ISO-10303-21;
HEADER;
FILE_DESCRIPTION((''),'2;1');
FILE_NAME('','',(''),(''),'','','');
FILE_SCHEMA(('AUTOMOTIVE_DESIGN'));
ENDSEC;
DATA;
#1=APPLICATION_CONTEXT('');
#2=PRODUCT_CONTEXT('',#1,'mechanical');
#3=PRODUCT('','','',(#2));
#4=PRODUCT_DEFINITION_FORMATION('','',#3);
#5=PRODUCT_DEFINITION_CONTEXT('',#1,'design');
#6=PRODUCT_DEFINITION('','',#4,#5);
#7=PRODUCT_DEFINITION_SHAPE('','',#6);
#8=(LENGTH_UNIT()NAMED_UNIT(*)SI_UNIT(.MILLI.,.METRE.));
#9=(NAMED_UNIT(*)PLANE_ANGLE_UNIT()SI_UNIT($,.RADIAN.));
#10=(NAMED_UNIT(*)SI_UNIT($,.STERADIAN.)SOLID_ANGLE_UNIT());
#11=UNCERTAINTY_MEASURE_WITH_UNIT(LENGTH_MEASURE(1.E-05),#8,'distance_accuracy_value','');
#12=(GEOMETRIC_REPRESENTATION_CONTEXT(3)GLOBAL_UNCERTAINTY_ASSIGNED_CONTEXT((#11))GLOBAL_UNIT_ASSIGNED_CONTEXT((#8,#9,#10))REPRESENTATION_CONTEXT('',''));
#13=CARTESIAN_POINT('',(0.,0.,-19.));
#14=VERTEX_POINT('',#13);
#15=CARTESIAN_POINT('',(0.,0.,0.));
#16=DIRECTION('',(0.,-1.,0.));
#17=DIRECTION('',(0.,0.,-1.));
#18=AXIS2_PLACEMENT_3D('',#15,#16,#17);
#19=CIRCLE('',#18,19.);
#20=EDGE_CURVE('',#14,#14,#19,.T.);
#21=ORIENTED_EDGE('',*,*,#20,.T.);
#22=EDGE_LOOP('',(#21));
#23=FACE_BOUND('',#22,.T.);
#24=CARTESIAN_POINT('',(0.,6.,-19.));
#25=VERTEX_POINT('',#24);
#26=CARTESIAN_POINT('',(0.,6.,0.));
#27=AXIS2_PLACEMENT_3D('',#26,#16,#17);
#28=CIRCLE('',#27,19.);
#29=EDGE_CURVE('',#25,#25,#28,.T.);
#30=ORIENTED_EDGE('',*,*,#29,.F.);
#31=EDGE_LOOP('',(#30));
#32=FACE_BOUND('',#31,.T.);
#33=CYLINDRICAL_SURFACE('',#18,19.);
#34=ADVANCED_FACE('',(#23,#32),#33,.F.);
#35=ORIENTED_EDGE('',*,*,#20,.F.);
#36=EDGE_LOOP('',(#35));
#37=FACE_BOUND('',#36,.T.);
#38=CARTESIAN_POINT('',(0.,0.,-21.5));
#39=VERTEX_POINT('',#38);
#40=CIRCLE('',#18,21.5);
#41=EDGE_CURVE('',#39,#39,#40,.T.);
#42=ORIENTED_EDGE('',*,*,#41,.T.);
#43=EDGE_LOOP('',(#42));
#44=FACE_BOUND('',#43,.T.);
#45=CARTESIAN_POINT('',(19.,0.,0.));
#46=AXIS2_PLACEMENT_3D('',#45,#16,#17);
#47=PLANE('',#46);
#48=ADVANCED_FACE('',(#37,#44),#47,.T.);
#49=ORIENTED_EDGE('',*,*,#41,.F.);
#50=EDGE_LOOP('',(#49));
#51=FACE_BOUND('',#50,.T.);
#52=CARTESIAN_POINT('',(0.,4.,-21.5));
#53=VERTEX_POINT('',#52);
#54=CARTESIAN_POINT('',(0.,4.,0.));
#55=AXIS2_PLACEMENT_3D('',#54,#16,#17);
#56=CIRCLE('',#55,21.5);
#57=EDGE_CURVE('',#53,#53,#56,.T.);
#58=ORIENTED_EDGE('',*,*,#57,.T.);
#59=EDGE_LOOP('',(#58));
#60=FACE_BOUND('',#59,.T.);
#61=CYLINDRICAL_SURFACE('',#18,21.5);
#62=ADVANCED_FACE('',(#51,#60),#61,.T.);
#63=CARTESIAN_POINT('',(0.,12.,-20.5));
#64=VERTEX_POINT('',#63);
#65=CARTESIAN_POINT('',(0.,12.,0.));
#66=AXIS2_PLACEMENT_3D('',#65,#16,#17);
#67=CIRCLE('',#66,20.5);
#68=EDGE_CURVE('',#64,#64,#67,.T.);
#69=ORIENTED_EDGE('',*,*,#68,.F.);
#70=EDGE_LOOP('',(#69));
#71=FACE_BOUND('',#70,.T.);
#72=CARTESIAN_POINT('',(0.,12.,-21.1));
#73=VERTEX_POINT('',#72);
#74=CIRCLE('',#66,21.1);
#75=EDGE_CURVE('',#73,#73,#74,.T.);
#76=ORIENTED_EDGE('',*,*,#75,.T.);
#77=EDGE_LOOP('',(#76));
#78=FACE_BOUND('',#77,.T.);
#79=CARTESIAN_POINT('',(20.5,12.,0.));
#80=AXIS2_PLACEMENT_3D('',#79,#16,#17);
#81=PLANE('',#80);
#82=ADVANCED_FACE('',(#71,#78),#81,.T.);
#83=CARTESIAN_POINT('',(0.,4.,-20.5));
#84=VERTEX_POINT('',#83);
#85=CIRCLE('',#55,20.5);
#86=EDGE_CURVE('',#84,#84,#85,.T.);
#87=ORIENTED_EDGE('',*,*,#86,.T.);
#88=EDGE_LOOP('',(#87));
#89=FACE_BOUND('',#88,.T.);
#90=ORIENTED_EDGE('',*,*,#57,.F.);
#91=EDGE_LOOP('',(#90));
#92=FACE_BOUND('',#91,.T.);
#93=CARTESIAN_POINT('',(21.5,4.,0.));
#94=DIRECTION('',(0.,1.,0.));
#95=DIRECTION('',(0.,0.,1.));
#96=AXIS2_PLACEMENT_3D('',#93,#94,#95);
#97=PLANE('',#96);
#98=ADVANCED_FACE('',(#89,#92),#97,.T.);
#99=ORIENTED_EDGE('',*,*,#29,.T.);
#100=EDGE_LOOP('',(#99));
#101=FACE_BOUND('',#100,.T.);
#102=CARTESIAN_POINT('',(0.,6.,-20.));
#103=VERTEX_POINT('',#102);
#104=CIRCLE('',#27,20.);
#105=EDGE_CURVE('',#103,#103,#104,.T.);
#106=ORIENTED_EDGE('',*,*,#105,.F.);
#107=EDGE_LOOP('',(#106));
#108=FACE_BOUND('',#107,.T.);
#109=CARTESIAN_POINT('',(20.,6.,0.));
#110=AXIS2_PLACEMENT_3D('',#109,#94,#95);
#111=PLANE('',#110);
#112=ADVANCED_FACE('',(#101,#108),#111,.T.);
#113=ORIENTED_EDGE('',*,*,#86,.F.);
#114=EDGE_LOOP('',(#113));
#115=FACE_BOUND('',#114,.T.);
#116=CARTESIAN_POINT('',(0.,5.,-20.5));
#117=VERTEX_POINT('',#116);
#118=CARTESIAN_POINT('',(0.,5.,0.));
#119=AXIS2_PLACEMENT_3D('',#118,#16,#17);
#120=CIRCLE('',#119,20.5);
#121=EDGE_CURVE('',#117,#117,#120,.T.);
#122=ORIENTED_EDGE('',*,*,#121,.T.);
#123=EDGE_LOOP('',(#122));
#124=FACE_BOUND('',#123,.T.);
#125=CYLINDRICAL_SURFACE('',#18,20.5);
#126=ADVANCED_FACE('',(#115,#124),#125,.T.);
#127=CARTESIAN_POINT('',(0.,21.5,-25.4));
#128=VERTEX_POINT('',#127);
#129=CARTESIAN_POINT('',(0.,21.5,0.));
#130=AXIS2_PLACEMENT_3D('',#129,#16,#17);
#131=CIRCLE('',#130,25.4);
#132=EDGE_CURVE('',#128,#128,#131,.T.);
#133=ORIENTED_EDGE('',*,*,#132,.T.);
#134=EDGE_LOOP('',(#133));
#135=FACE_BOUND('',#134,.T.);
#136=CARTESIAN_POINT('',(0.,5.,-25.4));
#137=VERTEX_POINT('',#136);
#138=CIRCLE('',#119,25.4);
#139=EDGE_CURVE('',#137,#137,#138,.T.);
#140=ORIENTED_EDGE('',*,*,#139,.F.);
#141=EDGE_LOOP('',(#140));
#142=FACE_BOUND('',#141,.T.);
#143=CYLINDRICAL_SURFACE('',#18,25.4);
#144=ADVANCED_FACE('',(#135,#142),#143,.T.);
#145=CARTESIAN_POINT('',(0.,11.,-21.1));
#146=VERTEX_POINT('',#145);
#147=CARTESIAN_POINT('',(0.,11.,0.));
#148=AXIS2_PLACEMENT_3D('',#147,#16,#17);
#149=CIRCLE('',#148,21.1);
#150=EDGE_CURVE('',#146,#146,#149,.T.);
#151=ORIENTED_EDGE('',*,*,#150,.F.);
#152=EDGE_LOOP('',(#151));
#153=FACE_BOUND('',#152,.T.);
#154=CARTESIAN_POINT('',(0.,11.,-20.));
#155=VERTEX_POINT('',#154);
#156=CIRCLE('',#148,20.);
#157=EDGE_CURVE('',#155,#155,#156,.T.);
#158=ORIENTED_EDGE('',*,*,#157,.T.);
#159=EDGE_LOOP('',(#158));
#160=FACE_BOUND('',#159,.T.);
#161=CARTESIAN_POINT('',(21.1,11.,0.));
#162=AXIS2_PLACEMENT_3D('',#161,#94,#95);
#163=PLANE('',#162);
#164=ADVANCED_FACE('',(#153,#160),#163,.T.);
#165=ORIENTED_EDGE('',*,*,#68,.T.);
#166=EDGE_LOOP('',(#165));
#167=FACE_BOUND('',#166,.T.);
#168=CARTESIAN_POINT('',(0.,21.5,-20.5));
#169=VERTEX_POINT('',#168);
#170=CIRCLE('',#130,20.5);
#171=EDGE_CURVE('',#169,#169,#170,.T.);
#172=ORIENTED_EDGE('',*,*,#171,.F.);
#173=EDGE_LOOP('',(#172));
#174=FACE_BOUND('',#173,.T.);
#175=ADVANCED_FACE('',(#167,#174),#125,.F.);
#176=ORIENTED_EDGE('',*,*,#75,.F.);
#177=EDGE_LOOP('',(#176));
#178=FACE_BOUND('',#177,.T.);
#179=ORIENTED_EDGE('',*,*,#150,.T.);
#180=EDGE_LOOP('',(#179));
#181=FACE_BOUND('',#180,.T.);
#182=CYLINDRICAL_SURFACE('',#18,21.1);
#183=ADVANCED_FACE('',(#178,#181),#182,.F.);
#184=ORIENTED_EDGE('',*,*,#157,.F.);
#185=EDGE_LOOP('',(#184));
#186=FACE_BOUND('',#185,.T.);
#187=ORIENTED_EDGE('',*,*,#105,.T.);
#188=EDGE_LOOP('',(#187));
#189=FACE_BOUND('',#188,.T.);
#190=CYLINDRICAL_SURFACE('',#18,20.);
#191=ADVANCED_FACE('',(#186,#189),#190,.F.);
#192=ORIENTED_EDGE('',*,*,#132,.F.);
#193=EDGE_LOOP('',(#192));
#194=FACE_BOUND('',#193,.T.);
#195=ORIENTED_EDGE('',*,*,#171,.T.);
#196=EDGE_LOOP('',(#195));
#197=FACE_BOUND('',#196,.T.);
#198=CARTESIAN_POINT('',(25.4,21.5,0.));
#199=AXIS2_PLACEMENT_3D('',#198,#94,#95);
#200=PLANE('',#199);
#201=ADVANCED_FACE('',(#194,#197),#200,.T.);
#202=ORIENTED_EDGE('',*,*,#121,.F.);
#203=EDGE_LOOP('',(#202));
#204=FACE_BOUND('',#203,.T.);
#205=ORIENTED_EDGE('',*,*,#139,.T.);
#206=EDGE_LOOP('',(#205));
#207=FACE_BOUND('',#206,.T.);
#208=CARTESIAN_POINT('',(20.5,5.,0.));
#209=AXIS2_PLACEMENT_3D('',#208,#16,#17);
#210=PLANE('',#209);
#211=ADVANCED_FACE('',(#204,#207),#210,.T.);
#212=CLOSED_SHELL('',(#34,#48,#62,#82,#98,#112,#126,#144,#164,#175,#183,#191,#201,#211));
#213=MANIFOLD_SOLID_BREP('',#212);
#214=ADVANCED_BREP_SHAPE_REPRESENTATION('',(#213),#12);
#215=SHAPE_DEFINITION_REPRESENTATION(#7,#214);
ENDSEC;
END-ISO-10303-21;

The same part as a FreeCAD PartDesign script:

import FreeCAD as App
import Part
import Sketcher

V = App.Vector
Q = App.Units.Quantity


def add_polygon(sketch, points):
    """Adds a closed chain of lines whose ends are joined by coincident constraints."""
    first, n = sketch.GeometryCount, len(points)
    for a, b in zip(points, points[1:] + points[:1]):
        sketch.addGeometry(Part.LineSegment(App.Vector(*a, 0), App.Vector(*b, 0)), False)
    for i in range(n):
        sketch.addConstraint(Sketcher.Constraint("Coincident", first + i, 2, first + (i + 1) % n, 1))

doc = App.newDocument("Part")
body = doc.addObject("PartDesign::Body", "Body")

sketch1 = body.newObject("Sketcher::SketchObject", "Sketch")
sketch1.AttachmentSupport = (doc.getObject("XY_Plane"), [""])
sketch1.MapMode = "FlatFace"
add_polygon(sketch1, [(19, 0), (21.5, 0), (21.5, 4), (20.5, 4), (20.5, 5), (25.4, 5), (25.4, 21.5), (20.5, 21.5), (20.5, 12), (21.1, 12), (21.1, 11), (20, 11), (20, 6), (19, 6)])
sketch1.addConstraint([
    Sketcher.Constraint("Horizontal", 0),
    Sketcher.Constraint("Vertical", 1),
    Sketcher.Constraint("Horizontal", 2),
    Sketcher.Constraint("Vertical", 3),
    Sketcher.Constraint("Horizontal", 4),
    Sketcher.Constraint("Vertical", 5),
    Sketcher.Constraint("Horizontal", 6),
    Sketcher.Constraint("Vertical", 7),
    Sketcher.Constraint("Horizontal", 8),
    Sketcher.Constraint("Vertical", 9),
    Sketcher.Constraint("Horizontal", 10),
    Sketcher.Constraint("Vertical", 11),
    Sketcher.Constraint("Horizontal", 12),
    Sketcher.Constraint("Vertical", 13),
    Sketcher.Constraint("PointOnObject", 0, 2, -1),
    Sketcher.Constraint("Vertical", 3, 2, 6, 2),
    Sketcher.Constraint("Equal", 2, 12),
    Sketcher.Constraint("Equal", 12, 3),
    Sketcher.Constraint("Equal", 3, 9),
    Sketcher.Constraint("DistanceX", 2, 2, 2, 1, Q("1 mm")),
    Sketcher.Constraint("DistanceY", 1, 1, 1, 2, Q("4 mm")),
    Sketcher.Constraint("DistanceY", 11, 2, 11, 1, Q("5 mm")),
    Sketcher.Constraint("DistanceY", 13, 2, 13, 1, Q("6 mm")),
    Sketcher.Constraint("DistanceX", 0, 1, 0, 2, Q("2.5 mm")),
    Sketcher.Constraint("DistanceX", 4, 1, 4, 2, Q("4.9 mm")),
    Sketcher.Constraint("DistanceX", 8, 1, 8, 2, Q("0.6 mm")),
    Sketcher.Constraint("DistanceY", 5, 1, 5, 2, Q("16.5 mm")),
    Sketcher.Constraint("DistanceX", -1, 1, 10, 2, Q("20 mm")),
])
revolution = body.newObject("PartDesign::Revolution", "Revolution")
revolution.Profile = sketch1
revolution.ReferenceAxis = (sketch1, ["V_Axis"])
revolution.Angle = 360

doc.recompute()
